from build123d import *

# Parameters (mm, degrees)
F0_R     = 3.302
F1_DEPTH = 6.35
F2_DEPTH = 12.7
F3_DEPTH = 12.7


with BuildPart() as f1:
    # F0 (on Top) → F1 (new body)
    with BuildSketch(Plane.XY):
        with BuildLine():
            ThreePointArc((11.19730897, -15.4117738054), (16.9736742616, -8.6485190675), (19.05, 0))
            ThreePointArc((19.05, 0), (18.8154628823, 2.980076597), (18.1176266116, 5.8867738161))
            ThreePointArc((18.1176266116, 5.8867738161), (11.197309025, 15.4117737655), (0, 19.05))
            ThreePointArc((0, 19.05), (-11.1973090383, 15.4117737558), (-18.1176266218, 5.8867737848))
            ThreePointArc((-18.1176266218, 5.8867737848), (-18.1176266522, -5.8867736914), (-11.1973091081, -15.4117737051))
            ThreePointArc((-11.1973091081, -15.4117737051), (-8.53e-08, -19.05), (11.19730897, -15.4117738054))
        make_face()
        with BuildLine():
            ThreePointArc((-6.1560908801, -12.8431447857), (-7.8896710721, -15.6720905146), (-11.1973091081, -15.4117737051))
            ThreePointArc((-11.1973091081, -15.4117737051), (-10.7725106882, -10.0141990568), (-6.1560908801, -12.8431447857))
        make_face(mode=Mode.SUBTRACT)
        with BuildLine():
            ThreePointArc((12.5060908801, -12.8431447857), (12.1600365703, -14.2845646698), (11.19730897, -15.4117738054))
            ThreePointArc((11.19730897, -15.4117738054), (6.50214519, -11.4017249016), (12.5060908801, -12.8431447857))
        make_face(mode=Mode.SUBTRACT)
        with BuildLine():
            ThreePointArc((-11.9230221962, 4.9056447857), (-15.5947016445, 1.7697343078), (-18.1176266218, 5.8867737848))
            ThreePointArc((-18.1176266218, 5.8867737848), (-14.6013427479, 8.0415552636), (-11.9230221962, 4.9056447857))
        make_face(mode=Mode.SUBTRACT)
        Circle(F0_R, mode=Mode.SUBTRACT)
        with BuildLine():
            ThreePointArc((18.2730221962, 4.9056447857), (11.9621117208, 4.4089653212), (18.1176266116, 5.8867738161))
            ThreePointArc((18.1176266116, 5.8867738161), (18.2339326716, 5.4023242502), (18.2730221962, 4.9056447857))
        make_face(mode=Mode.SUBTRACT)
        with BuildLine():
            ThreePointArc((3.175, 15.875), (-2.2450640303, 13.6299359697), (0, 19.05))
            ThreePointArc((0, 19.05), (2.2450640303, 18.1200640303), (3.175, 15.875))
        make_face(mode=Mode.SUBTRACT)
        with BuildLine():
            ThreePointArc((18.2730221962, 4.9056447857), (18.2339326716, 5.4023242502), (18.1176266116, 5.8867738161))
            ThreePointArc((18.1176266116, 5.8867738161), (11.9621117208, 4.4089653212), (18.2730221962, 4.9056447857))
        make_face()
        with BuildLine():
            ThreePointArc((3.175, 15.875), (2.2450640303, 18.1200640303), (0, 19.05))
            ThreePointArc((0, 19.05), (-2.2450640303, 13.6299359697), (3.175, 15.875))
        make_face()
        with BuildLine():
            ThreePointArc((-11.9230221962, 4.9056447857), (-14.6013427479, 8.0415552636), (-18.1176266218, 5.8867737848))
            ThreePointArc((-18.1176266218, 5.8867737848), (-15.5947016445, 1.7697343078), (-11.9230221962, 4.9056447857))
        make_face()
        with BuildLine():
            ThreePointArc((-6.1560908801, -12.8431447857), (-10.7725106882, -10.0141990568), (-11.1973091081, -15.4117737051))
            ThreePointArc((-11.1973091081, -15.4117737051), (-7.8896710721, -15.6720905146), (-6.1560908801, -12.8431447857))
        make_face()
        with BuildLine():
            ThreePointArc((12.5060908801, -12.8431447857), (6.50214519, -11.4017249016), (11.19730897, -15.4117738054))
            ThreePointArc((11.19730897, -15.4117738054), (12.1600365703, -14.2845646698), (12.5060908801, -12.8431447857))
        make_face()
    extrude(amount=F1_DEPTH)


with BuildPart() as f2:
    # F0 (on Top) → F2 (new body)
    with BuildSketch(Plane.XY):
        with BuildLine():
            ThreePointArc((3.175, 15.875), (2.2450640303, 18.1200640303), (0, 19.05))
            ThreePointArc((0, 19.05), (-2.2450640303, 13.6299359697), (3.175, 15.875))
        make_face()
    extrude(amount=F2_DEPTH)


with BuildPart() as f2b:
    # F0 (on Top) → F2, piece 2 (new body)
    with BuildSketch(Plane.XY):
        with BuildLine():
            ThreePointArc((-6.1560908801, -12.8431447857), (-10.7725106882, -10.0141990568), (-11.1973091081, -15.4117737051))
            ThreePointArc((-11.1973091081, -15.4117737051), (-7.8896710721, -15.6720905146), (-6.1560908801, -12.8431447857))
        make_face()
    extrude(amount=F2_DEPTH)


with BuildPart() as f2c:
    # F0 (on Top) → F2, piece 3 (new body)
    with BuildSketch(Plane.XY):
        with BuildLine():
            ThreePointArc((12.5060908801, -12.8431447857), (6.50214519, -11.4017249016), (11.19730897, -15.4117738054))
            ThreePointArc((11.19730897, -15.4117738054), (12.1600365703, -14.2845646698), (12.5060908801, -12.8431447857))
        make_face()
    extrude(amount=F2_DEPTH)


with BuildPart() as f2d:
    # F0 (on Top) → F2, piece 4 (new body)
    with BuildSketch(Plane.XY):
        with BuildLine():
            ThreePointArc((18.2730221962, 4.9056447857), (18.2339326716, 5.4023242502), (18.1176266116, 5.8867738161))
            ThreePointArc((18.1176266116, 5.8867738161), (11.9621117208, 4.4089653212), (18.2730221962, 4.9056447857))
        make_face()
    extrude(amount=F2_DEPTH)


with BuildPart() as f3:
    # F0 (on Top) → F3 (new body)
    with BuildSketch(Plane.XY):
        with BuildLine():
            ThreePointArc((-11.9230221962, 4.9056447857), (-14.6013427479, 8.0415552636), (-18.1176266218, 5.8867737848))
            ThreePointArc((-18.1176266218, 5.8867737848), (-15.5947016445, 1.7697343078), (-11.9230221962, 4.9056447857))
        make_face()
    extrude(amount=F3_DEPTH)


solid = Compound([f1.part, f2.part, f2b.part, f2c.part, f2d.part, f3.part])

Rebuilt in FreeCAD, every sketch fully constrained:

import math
import FreeCAD as App
import Part
import Sketcher

V = App.Vector
Q = App.Units.Quantity

doc = App.newDocument("Part")
body = doc.addObject("PartDesign::Body", "Body")

# Sketch on XY plane
sketch1 = body.newObject("Sketcher::SketchObject", "Sketch")
sketch1.AttachmentSupport = (doc.getObject("XY_Plane"), [""])
sketch1.MapMode = "FlatFace"
sketch1.addGeometry(Part.ArcOfCircle(Part.Circle(V(0, 0, 0), V(0, 0, 1), 19.1), math.radians(-126), math.radians(-54)), False)
sketch1.addGeometry(Part.ArcOfCircle(Part.Circle(V(0, 0, 0), V(0, 0, 1), 19.1), math.radians(-54), math.radians(0)), False)
sketch1.addGeometry(Part.ArcOfCircle(Part.Circle(V(0, 0, 0), V(0, 0, 1), 19.1), math.radians(0), math.radians(18)), False)
sketch1.addGeometry(Part.ArcOfCircle(Part.Circle(V(0, 0, 0), V(0, 0, 1), 19.1), math.radians(18), math.radians(90)), False)
sketch1.addGeometry(Part.ArcOfCircle(Part.Circle(V(0, 0, 0), V(0, 0, 1), 19.1), math.radians(90), math.radians(162)), False)
sketch1.addGeometry(Part.ArcOfCircle(Part.Circle(V(0, 0, 0), V(0, 0, 1), 19.1), math.radians(162), math.radians(234)), False)
sketch1.addGeometry(Part.Circle(V(0, 0, 0), V(0, 0, 1), 3.3), False)
sketch1.addConstraint(Sketcher.Constraint("Tangent", 0, 2, 1, 1))
sketch1.addConstraint(Sketcher.Constraint("Tangent", 1, 2, 2, 1))
sketch1.addConstraint(Sketcher.Constraint("Tangent", 2, 2, 3, 1))
sketch1.addConstraint(Sketcher.Constraint("Tangent", 3, 2, 4, 1))
sketch1.addConstraint(Sketcher.Constraint("Tangent", 4, 2, 5, 1))
sketch1.addConstraint(Sketcher.Constraint("Tangent", 5, 2, 0, 1))
sketch1.addConstraint(Sketcher.Constraint("Coincident", 0, 3, -1, 1))
sketch1.addConstraint(Sketcher.Constraint("Coincident", 2, 3, -1, 1))
sketch1.addConstraint(Sketcher.Constraint("Coincident", 6, 3, -1, 1))
sketch1.addConstraint(Sketcher.Constraint("Equal", 2, 3))
sketch1.addConstraint(Sketcher.Constraint("PointOnObject", 1, 2, -1))
sketch1.addConstraint(Sketcher.Constraint("PointOnObject", 3, 2, -2))
sketch1.addConstraint(Sketcher.Constraint("Horizontal", 2, 2, 4, 2))
sketch1.addConstraint(Sketcher.Constraint("Horizontal", 0, 2, 5, 2))
sketch1.addConstraint(Sketcher.Constraint("Diameter", 6, Q("0.26 in")))
sketch1.addConstraint(Sketcher.Constraint("Radius", 0, Q("0.75 in")))
sketch1.addConstraint(Sketcher.Constraint("DistanceX", -1, 1, 0, 2, 11.197309))
sketch1.addConstraint(Sketcher.Constraint("DistanceX", -1, 1, 2, 2, 18.117627))
pad1 = body.newObject("PartDesign::Pad", "Pad")
pad1.Profile = sketch1
pad1.Length = Q("0.25 in")
body2 = doc.addObject("PartDesign::Body", "Body001")

# Sketch on XY plane
sketch2 = body2.newObject("Sketcher::SketchObject", "Sketch001")
sketch2.AttachmentSupport = (doc.getObject("XY_Plane001"), [""])
sketch2.MapMode = "FlatFace"
sketch2.addGeometry(Part.ArcOfCircle(Part.Circle(V(0, 15.9, 0), V(0, 0, 1), 3.2), math.radians(0), math.radians(90)), False)
sketch2.addGeometry(Part.ArcOfCircle(Part.Circle(V(0, 15.9, 0), V(0, 0, 1), 3.2), math.radians(90), math.radians(360)), False)
sketch2.addConstraint(Sketcher.Constraint("Tangent", 0, 1, 1, 2))
sketch2.addConstraint(Sketcher.Constraint("Coincident", 1, 1, 0, 2))
sketch2.addConstraint(Sketcher.Constraint("PointOnObject", 0, 3, -2))
sketch2.addConstraint(Sketcher.Constraint("PointOnObject", 1, 1, -2))
sketch2.addConstraint(Sketcher.Constraint("Horizontal", 1, 3, 0, 1))
sketch2.addConstraint(Sketcher.Constraint("Radius", 0, Q("0.125 in")))
sketch2.addConstraint(Sketcher.Constraint("DistanceY", -1, 1, 1, 1, Q("0.75 in")))
pad2 = body2.newObject("PartDesign::Pad", "Pad001")
pad2.Profile = sketch2
pad2.Length = Q("0.5 in")
body3 = doc.addObject("PartDesign::Body", "Body002")

# Sketch on XY plane
sketch3 = body3.newObject("Sketcher::SketchObject", "Sketch002")
sketch3.AttachmentSupport = (doc.getObject("XY_Plane002"), [""])
sketch3.MapMode = "FlatFace"
sketch3.addGeometry(Part.ArcOfCircle(Part.Circle(V(-9.3, -12.8, 0), V(0, 0, 1), 3.2), math.radians(0), math.radians(234)), False)
sketch3.addGeometry(Part.ArcOfCircle(Part.Circle(V(-9.3, -12.8, 0), V(0, 0, 1), 3.2), math.radians(-126), math.radians(0)), False)
sketch3.addConstraint(Sketcher.Constraint("Tangent", 0, 1, 1, 2))
sketch3.addConstraint(Sketcher.Constraint("Coincident", 1, 1, 0, 2))
sketch3.addConstraint(Sketcher.Constraint("Horizontal", 1, 3, 0, 1))
sketch3.addConstraint(Sketcher.Constraint("Radius", 0, Q("0.125 in")))
sketch3.addConstraint(Sketcher.Constraint("DistanceX", 0, 3, -1, 1, 9.331091))
sketch3.addConstraint(Sketcher.Constraint("DistanceX", 1, 1, -1, 1, 11.197309))
sketch3.addConstraint(Sketcher.Constraint("DistanceY", 0, 3, -1, 1, 12.843145))
pad3 = body3.newObject("PartDesign::Pad", "Pad002")
pad3.Profile = sketch3
pad3.Length = Q("0.5 in")
body4 = doc.addObject("PartDesign::Body", "Body003")

# Sketch on XY plane
sketch4 = body4.newObject("Sketcher::SketchObject", "Sketch003")
sketch4.AttachmentSupport = (doc.getObject("XY_Plane003"), [""])
sketch4.MapMode = "FlatFace"
sketch4.addGeometry(Part.ArcOfCircle(Part.Circle(V(9.3, -12.8, 0), V(0, 0, 1), 3.2), math.radians(0), math.radians(306)), False)
sketch4.addGeometry(Part.ArcOfCircle(Part.Circle(V(9.3, -12.8, 0), V(0, 0, 1), 3.2), math.radians(-54), math.radians(0)), False)
sketch4.addConstraint(Sketcher.Constraint("Tangent", 0, 1, 1, 2))
sketch4.addConstraint(Sketcher.Constraint("Coincident", 1, 1, 0, 2))
sketch4.addConstraint(Sketcher.Constraint("Horizontal", 1, 3, 0, 1))
sketch4.addConstraint(Sketcher.Constraint("Radius", 0, Q("0.125 in")))
sketch4.addConstraint(Sketcher.Constraint("DistanceX", -1, 1, 0, 3, 9.331091))
sketch4.addConstraint(Sketcher.Constraint("DistanceX", -1, 1, 1, 1, 11.197309))
sketch4.addConstraint(Sketcher.Constraint("DistanceY", 0, 3, -1, 1, 12.843145))
pad4 = body4.newObject("PartDesign::Pad", "Pad003")
pad4.Profile = sketch4
pad4.Length = Q("0.5 in")
body5 = doc.addObject("PartDesign::Body", "Body004")

# Sketch on XY plane
sketch5 = body5.newObject("Sketcher::SketchObject", "Sketch004")
sketch5.AttachmentSupport = (doc.getObject("XY_Plane004"), [""])
sketch5.MapMode = "FlatFace"
sketch5.addGeometry(Part.ArcOfCircle(Part.Circle(V(15.1, 4.9, 0), V(0, 0, 1), 3.2), math.radians(0), math.radians(18)), False)
sketch5.addGeometry(Part.ArcOfCircle(Part.Circle(V(15.1, 4.9, 0), V(0, 0, 1), 3.2), math.radians(18), math.radians(360)), False)
sketch5.addConstraint(Sketcher.Constraint("Tangent", 0, 1, 1, 2))
sketch5.addConstraint(Sketcher.Constraint("Coincident", 1, 1, 0, 2))
sketch5.addConstraint(Sketcher.Constraint("Horizontal", 1, 3, 0, 1))
sketch5.addConstraint(Sketcher.Constraint("Radius", 0, Q("0.125 in")))
sketch5.addConstraint(Sketcher.Constraint("DistanceY", 0, 1, 1, 1, 0.981129))
sketch5.addConstraint(Sketcher.Constraint("DistanceX", -1, 1, 0, 3, 15.098022))
sketch5.addConstraint(Sketcher.Constraint("DistanceY", -1, 1, 0, 3, 4.905645))
pad5 = body5.newObject("PartDesign::Pad", "Pad004")
pad5.Profile = sketch5
pad5.Length = Q("0.5 in")
body6 = doc.addObject("PartDesign::Body", "Body005")

# Sketch on XY plane
sketch6 = body6.newObject("Sketcher::SketchObject", "Sketch005")
sketch6.AttachmentSupport = (doc.getObject("XY_Plane005"), [""])
sketch6.MapMode = "FlatFace"
sketch6.addGeometry(Part.ArcOfCircle(Part.Circle(V(-15.1, 4.9, 0), V(0, 0, 1), 3.2), math.radians(0), math.radians(162)), False)
sketch6.addGeometry(Part.ArcOfCircle(Part.Circle(V(-15.1, 4.9, 0), V(0, 0, 1), 3.2), math.radians(162), math.radians(360)), False)
sketch6.addConstraint(Sketcher.Constraint("Tangent", 0, 1, 1, 2))
sketch6.addConstraint(Sketcher.Constraint("Coincident", 1, 1, 0, 2))
sketch6.addConstraint(Sketcher.Constraint("Horizontal", 1, 3, 0, 1))
sketch6.addConstraint(Sketcher.Constraint("Radius", 0, Q("0.125 in")))
sketch6.addConstraint(Sketcher.Constraint("DistanceY", 0, 3, 1, 1, 0.981129))
sketch6.addConstraint(Sketcher.Constraint("DistanceX", 0, 3, -1, 1, 15.098022))
sketch6.addConstraint(Sketcher.Constraint("DistanceY", -1, 1, 0, 3, 4.905645))
pad6 = body6.newObject("PartDesign::Pad", "Pad005")
pad6.Profile = sketch6
pad6.Length = Q("0.5 in")

doc.recompute()
